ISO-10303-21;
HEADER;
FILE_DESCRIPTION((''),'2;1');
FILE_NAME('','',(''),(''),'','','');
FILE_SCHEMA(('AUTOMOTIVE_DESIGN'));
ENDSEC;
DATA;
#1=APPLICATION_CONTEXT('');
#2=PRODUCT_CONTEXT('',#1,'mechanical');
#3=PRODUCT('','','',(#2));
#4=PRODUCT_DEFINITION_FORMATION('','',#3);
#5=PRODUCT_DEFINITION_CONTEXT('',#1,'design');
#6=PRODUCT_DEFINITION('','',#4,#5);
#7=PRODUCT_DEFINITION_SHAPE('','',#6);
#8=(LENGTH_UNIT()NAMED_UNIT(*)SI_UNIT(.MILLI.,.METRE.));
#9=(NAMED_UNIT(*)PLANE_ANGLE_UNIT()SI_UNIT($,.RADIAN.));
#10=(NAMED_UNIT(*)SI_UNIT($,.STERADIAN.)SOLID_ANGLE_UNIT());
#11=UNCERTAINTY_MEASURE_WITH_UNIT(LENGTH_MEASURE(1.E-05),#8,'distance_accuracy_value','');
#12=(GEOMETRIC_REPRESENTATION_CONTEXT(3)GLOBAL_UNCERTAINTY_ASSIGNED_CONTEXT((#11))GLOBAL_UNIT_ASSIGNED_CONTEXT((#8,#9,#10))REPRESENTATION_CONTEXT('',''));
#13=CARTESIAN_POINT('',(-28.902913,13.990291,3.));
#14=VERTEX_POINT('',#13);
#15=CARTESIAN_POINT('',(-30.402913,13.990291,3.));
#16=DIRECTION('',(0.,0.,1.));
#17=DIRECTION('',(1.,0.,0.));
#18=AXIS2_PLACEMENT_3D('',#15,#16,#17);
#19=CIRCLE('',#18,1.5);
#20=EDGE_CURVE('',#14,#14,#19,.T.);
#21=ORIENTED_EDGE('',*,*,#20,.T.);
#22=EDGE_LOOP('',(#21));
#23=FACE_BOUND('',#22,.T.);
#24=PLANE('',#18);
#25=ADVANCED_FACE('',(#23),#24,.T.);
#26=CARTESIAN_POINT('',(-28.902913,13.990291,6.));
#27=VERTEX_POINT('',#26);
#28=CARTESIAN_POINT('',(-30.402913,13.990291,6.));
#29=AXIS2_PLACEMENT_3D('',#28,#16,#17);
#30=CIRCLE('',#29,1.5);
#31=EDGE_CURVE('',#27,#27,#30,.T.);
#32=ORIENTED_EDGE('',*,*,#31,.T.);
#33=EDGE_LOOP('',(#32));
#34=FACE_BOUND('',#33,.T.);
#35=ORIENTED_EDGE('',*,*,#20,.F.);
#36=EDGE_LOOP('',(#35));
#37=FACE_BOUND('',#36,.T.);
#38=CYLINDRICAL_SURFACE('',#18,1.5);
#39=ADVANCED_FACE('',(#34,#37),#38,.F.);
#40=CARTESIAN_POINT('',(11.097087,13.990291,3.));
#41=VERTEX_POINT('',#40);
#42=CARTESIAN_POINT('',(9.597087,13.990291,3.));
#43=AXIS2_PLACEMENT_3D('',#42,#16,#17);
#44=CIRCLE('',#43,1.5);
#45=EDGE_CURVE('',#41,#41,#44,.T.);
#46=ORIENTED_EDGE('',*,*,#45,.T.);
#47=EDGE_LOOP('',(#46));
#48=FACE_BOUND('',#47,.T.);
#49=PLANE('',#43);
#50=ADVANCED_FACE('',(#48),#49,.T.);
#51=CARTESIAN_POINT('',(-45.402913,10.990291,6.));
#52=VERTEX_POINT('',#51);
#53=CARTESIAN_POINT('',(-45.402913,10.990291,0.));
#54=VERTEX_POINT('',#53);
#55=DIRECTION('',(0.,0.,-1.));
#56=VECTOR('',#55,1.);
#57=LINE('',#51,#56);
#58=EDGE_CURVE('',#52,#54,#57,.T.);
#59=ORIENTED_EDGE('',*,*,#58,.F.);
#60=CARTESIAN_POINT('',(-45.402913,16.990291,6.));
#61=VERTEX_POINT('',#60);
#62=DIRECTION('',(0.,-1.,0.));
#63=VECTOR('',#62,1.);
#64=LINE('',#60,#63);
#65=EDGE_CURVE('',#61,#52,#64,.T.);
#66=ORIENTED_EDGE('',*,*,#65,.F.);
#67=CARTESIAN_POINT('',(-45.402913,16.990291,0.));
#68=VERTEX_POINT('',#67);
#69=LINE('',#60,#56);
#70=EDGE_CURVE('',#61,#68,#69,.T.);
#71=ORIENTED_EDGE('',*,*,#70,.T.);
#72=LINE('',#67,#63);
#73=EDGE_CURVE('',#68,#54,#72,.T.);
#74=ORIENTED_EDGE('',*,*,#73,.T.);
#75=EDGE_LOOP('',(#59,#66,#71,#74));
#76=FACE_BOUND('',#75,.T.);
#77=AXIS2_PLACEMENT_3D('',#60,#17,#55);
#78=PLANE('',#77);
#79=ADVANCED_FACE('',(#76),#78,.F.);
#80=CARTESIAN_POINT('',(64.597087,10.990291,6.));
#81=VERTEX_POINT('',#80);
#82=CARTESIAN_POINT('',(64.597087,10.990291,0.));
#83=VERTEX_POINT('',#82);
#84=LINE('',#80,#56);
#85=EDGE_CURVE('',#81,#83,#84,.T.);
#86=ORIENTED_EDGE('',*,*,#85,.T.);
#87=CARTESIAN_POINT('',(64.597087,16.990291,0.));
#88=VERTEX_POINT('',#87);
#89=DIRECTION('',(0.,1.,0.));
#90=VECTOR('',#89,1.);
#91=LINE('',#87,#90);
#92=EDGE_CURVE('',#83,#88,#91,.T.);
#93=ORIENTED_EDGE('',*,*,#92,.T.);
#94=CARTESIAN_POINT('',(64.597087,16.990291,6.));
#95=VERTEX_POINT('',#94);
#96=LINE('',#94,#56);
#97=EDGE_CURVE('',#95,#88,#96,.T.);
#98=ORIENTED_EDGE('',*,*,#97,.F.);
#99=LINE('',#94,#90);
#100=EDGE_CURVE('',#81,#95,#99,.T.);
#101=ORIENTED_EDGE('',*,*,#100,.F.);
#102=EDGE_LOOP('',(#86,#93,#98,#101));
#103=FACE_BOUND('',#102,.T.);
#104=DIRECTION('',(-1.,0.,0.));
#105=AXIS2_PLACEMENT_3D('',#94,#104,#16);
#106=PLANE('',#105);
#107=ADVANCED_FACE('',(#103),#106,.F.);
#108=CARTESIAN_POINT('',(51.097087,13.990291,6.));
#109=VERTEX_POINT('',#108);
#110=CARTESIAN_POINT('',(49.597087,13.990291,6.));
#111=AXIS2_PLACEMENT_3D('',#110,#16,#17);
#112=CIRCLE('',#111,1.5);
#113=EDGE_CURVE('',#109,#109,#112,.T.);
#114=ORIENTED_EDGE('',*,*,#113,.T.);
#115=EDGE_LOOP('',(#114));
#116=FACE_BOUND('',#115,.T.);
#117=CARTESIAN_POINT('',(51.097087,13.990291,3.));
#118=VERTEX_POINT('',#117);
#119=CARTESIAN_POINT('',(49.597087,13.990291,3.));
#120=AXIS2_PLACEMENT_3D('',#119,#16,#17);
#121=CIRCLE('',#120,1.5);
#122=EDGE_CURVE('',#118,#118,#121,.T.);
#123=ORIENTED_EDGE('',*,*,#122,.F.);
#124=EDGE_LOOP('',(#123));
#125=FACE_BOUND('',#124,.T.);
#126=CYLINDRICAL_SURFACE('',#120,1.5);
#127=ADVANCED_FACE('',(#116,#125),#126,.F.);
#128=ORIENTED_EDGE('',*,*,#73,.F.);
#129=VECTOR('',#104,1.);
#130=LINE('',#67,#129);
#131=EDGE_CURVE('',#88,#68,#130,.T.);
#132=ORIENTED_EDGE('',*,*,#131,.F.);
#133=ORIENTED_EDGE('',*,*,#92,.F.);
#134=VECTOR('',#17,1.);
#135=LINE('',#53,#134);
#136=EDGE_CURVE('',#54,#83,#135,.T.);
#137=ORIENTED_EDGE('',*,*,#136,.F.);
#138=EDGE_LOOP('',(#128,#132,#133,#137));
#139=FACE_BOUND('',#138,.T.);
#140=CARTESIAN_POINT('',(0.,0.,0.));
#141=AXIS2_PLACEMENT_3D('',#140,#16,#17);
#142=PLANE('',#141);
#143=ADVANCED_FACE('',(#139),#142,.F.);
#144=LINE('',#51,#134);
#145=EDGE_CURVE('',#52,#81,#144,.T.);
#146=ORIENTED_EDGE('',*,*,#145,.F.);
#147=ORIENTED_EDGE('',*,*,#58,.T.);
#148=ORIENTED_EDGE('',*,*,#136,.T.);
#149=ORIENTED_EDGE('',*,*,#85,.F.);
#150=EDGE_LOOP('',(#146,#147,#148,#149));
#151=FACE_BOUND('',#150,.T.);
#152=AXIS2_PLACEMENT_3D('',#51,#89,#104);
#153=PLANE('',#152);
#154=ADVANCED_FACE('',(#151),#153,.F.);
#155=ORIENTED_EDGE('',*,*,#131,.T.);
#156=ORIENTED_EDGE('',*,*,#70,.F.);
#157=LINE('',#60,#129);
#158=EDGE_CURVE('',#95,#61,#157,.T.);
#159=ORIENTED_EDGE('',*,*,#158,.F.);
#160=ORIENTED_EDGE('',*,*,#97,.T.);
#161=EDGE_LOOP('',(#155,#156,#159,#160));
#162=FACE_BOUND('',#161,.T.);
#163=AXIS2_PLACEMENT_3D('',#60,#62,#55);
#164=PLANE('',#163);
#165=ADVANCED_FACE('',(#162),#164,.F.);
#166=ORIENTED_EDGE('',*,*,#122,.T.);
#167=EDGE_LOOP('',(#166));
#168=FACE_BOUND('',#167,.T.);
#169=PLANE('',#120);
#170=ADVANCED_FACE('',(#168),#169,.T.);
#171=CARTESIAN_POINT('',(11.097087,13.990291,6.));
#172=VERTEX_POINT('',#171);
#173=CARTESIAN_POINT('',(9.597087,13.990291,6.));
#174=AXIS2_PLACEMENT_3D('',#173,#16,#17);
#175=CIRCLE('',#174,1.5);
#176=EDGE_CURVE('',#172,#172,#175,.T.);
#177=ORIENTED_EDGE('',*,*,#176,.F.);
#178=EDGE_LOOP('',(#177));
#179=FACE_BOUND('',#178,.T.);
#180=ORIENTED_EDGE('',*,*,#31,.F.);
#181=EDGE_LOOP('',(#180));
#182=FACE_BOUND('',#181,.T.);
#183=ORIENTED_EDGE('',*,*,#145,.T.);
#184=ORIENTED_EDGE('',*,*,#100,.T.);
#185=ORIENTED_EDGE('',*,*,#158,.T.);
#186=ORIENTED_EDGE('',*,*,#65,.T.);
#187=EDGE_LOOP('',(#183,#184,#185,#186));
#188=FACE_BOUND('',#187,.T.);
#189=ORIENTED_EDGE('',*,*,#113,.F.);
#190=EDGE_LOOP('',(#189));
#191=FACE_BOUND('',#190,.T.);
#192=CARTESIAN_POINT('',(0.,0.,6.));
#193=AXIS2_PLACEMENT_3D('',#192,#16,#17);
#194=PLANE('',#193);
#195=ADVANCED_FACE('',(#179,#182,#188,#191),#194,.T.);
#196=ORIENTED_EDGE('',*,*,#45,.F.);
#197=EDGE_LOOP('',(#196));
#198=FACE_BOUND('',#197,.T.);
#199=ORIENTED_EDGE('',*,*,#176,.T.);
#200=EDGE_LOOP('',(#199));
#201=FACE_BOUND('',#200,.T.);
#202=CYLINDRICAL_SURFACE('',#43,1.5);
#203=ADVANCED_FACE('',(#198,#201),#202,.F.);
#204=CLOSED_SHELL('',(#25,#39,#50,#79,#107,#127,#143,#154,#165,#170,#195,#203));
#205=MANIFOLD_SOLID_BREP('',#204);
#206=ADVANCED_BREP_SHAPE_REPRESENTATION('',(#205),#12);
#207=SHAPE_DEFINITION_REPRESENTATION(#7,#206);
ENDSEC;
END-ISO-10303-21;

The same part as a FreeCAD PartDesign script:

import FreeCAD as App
import Part
import Sketcher
from FreeCAD import Vector

doc = App.newDocument("Part")
params = doc.addObject("Spreadsheet::Sheet", "Params")
for row, (alias, value) in enumerate([
    ("sketch1_width", "110 mm"),
    ("sketch1_height", "6 mm"),
    ("pad1_length", "6 mm"),
    ("sketch2_diameter", "3 mm"),
    ("pocket1_length", "3 mm"),
], start=1):
    params.set(f"A{row}", alias)
    params.set(f"B{row}", "=" + value)
    params.setAlias(f"B{row}", alias)

body = doc.addObject("PartDesign::Body", "Body")

sketch1 = body.newObject("Sketcher::SketchObject", "Sketch")
sketch1.AttachmentSupport = (doc.getObject("XY_Plane"), [""])
sketch1.MapMode = "FlatFace"
sketch1.addGeometry(Part.LineSegment(Vector(-45, 17, 0), Vector(-45, 11, 0)), False)
sketch1.addGeometry(Part.LineSegment(Vector(-45, 11, 0), Vector(65, 11, 0)), False)
sketch1.addGeometry(Part.LineSegment(Vector(65, 11, 0), Vector(65, 17, 0)), False)
sketch1.addGeometry(Part.LineSegment(Vector(65, 17, 0), Vector(-45, 17, 0)), False)
sketch1.addConstraint(Sketcher.Constraint("Coincident", 0, 2, 1, 1))
sketch1.addConstraint(Sketcher.Constraint("Coincident", 1, 2, 2, 1))
sketch1.addConstraint(Sketcher.Constraint("Coincident", 2, 2, 3, 1))
sketch1.addConstraint(Sketcher.Constraint("Coincident", 3, 2, 0, 1))
sketch1.addConstraint(Sketcher.Constraint("Vertical", 0))
sketch1.addConstraint(Sketcher.Constraint("Horizontal", 1))
sketch1.addConstraint(Sketcher.Constraint("Vertical", 2))
sketch1.addConstraint(Sketcher.Constraint("Horizontal", 3))
sketch1.addConstraint(Sketcher.Constraint("DistanceX", 1, 1, 1, 2, 110.0))
sketch1.addConstraint(Sketcher.Constraint("DistanceY", 0, 2, 0, 1, 6.0))
sketch1.addConstraint(Sketcher.Constraint("DistanceY", -1, 1, 0, 2, 10.990291))
sketch1.addConstraint(Sketcher.Constraint("DistanceX", 0, 2, -1, 1, 45.402913))
sketch1.setExpression("Constraints[8]", "Params.sketch1_width")
sketch1.setExpression("Constraints[9]", "Params.sketch1_height")
pad1 = body.newObject("PartDesign::Pad", "Pad")
pad1.Profile = sketch1
pad1.setExpression("Length", "Params.pad1_length")

sketch2 = body.newObject("Sketcher::SketchObject", "Sketch001")
sketch2.AttachmentSupport = (doc.getObject("XY_Plane"), [""])
sketch2.MapMode = "FlatFace"
sketch2.AttachmentOffset = App.Placement(Vector(0, 0, 6), App.Rotation())
sketch2.addGeometry(Part.Circle(Vector(-30.4, 14, 0), Vector(0, 0, 1), 1.5), False)
sketch2.addGeometry(Part.Circle(Vector(9.6, 14, 0), Vector(0, 0, 1), 1.5), False)
sketch2.addGeometry(Part.Circle(Vector(49.6, 14, 0), Vector(0, 0, 1), 1.5), False)
sketch2.addConstraint(Sketcher.Constraint("Equal", 0, 1))
sketch2.addConstraint(Sketcher.Constraint("Equal", 1, 2))
sketch2.addConstraint(Sketcher.Constraint("Horizontal", 0, 3, 1, 3))
sketch2.addConstraint(Sketcher.Constraint("Horizontal", 1, 3, 2, 3))
sketch2.addConstraint(Sketcher.Constraint("Diameter", 0, 3.0))
sketch2.addConstraint(Sketcher.Constraint("DistanceX", 0, 3, 1, 3, 40.0))
sketch2.addConstraint(Sketcher.Constraint("DistanceX", 1, 3, 2, 3, 40.0))
sketch2.addConstraint(Sketcher.Constraint("DistanceY", -1, 1, 0, 3, 13.990291))
sketch2.addConstraint(Sketcher.Constraint("DistanceX", 0, 3, -1, 1, 30.402913))
sketch2.setExpression("Constraints[4]", "Params.sketch2_diameter")
pocket1 = body.newObject("PartDesign::Pocket", "Pocket")
pocket1.Profile = sketch2
pocket1.setExpression("Length", "Params.pocket1_length")

doc.recompute()
